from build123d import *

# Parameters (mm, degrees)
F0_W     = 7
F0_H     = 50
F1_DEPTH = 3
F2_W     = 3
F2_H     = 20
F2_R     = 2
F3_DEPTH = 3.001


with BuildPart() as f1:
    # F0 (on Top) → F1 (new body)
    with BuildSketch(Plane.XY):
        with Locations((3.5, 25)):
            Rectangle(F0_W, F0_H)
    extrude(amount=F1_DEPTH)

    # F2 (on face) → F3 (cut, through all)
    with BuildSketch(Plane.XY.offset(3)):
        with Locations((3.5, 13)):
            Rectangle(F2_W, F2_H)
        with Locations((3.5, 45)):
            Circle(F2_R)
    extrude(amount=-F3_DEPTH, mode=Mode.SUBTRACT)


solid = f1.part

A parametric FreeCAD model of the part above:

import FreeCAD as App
import Part
import Sketcher
from FreeCAD import Vector
Q = App.Units.Quantity


def add_polygon(sketch, points):
    """Adds a closed chain of lines whose ends are joined by coincident constraints."""
    first, n = sketch.GeometryCount, len(points)
    for a, b in zip(points, points[1:] + points[:1]):
        sketch.addGeometry(Part.LineSegment(App.Vector(*a, 0), App.Vector(*b, 0)), False)
    for i in range(n):
        sketch.addConstraint(Sketcher.Constraint("Coincident", first + i, 2, first + (i + 1) % n, 1))

doc = App.newDocument("Part")
body = doc.addObject("PartDesign::Body", "Body")

# Sketch on XY plane
sketch1 = body.newObject("Sketcher::SketchObject", "Sketch")
sketch1.AttachmentSupport = (doc.getObject("XY_Plane"), [""])
sketch1.MapMode = "FlatFace"
add_polygon(sketch1, [(0, 50), (0, 0), (7, 0), (7, 50)])  # lines 0-3
sketch1.addConstraint([
    Sketcher.Constraint("Vertical", 0),
    Sketcher.Constraint("Horizontal", 1),
    Sketcher.Constraint("Vertical", 2),
    Sketcher.Constraint("Horizontal", 3),
    Sketcher.Constraint("Coincident", 0, 2, -1, 1),
    Sketcher.Constraint("DistanceX", 1, 1, 1, 2, Q("7 mm")),
    Sketcher.Constraint("DistanceY", 0, 2, 0, 1, Q("50 mm")),
])
pad1 = body.newObject("PartDesign::Pad", "Pad")
pad1.Profile = sketch1
pad1.Length = 3

# Sketch on XY plane
sketch2 = body.newObject("Sketcher::SketchObject", "Sketch001")
sketch2.AttachmentSupport = (doc.getObject("XY_Plane"), [""])
sketch2.MapMode = "FlatFace"
sketch2.AttachmentOffset = App.Placement(Vector(0, 0, 3), App.Rotation())
add_polygon(sketch2, [(2, 23), (2, 3), (5, 3), (5, 23)])  # lines 0-3
sketch2.addGeometry(Part.Circle(Vector(3.5, 45, 0), Vector(0, 0, 1), 2), False)  # 4
sketch2.addConstraint([
    Sketcher.Constraint("Vertical", 0),
    Sketcher.Constraint("Horizontal", 1),
    Sketcher.Constraint("Vertical", 2),
    Sketcher.Constraint("Horizontal", 3),
    Sketcher.Constraint("Diameter", 4, Q("4 mm")),
    Sketcher.Constraint("DistanceX", 1, 1, 1, 2, Q("3 mm")),
    Sketcher.Constraint("DistanceY", 0, 2, 0, 1, Q("20 mm")),
    Sketcher.Constraint("DistanceY", -1, 1, 4, 3, Q("45 mm")),
    Sketcher.Constraint("DistanceX", -1, 1, 0, 2, Q("2 mm")),
    Sketcher.Constraint("DistanceY", -1, 1, 0, 2, Q("3 mm")),
    Sketcher.Constraint("DistanceX", -1, 1, 4, 3, Q("3.5 mm")),
])
pocket1 = body.newObject("PartDesign::Pocket", "Pocket")
pocket1.Profile = sketch2
pocket1.Type = "ThroughAll"

doc.recompute()
